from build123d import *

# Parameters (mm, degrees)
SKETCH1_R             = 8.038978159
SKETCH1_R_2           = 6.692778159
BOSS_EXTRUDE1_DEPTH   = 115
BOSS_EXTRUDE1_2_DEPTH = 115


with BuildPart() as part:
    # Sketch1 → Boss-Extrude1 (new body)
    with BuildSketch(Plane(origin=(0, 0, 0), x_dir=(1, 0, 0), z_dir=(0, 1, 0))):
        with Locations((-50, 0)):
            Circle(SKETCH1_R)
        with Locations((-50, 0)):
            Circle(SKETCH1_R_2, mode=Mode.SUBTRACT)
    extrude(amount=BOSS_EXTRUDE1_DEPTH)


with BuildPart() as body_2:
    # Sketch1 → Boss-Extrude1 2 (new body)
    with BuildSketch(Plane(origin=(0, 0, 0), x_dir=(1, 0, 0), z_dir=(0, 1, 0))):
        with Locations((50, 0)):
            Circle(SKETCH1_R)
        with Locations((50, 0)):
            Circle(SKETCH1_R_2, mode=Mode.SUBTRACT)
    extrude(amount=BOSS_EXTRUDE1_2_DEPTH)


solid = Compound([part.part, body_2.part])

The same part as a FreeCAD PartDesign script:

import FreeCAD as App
import Part
import Sketcher

doc = App.newDocument("Part")
params = doc.addObject("Spreadsheet::Sheet", "Params")
for row, (alias, value) in enumerate([
    ("pad1_length", "115 mm"),
    ("pad2_length", "115 mm"),
], start=1):
    params.set(f"A{row}", alias)
    params.set(f"B{row}", "=" + value)
    params.setAlias(f"B{row}", alias)

body = doc.addObject("PartDesign::Body", "Body")

sketch1 = doc.addObject("Sketcher::SketchObject", "Sketch")
body.addObject(sketch1)
sketch1.AttachmentSupport = (doc.XZ_Plane, [""])
sketch1.MapMode = "FlatFace"
sketch1.addGeometry([
    Part.Circle(App.Vector(-50, 0, 0), App.Vector(0, 0, 1), 8.038978),
    Part.Circle(App.Vector(-50, 0, 0), App.Vector(0, 0, 1), 6.692778),
], False)
sketch1.addConstraint([
    Sketcher.Constraint("Coincident", 1, 3, 0, 3),
    Sketcher.Constraint("PointOnObject", 0, 3, -1),
    Sketcher.Constraint("DistanceX", 0, 3, -1, 1, 50.0),
    Sketcher.Constraint("Diameter", 0, 16.077956),
    Sketcher.Constraint("Diameter", 1, 13.385556),
])
pad1 = doc.addObject("PartDesign::Pad", "Pad")
body.addObject(pad1)
pad1.Profile = sketch1
pad1.setExpression("Length", "Params.pad1_length")
pad1.Reversed = True
body2 = doc.addObject("PartDesign::Body", "Body001")

sketch2 = doc.addObject("Sketcher::SketchObject", "Sketch001")
body2.addObject(sketch2)
sketch2.AttachmentSupport = (doc.getObject("XZ_Plane001"), [""])
sketch2.MapMode = "FlatFace"
sketch2.addGeometry([
    Part.Circle(App.Vector(50, 0, 0), App.Vector(0, 0, 1), 8.038978),
    Part.Circle(App.Vector(50, 0, 0), App.Vector(0, 0, 1), 6.692778),
], False)
sketch2.addConstraint([
    Sketcher.Constraint("Coincident", 1, 3, 0, 3),
    Sketcher.Constraint("PointOnObject", 0, 3, -1),
    Sketcher.Constraint("DistanceX", -1, 1, 0, 3, 50.0),
    Sketcher.Constraint("Diameter", 0, 16.077956),
    Sketcher.Constraint("Diameter", 1, 13.385556),
])
pad2 = doc.addObject("PartDesign::Pad", "Pad001")
body2.addObject(pad2)
pad2.Profile = sketch2
pad2.setExpression("Length", "Params.pad2_length")
pad2.Reversed = True

doc.recompute()
